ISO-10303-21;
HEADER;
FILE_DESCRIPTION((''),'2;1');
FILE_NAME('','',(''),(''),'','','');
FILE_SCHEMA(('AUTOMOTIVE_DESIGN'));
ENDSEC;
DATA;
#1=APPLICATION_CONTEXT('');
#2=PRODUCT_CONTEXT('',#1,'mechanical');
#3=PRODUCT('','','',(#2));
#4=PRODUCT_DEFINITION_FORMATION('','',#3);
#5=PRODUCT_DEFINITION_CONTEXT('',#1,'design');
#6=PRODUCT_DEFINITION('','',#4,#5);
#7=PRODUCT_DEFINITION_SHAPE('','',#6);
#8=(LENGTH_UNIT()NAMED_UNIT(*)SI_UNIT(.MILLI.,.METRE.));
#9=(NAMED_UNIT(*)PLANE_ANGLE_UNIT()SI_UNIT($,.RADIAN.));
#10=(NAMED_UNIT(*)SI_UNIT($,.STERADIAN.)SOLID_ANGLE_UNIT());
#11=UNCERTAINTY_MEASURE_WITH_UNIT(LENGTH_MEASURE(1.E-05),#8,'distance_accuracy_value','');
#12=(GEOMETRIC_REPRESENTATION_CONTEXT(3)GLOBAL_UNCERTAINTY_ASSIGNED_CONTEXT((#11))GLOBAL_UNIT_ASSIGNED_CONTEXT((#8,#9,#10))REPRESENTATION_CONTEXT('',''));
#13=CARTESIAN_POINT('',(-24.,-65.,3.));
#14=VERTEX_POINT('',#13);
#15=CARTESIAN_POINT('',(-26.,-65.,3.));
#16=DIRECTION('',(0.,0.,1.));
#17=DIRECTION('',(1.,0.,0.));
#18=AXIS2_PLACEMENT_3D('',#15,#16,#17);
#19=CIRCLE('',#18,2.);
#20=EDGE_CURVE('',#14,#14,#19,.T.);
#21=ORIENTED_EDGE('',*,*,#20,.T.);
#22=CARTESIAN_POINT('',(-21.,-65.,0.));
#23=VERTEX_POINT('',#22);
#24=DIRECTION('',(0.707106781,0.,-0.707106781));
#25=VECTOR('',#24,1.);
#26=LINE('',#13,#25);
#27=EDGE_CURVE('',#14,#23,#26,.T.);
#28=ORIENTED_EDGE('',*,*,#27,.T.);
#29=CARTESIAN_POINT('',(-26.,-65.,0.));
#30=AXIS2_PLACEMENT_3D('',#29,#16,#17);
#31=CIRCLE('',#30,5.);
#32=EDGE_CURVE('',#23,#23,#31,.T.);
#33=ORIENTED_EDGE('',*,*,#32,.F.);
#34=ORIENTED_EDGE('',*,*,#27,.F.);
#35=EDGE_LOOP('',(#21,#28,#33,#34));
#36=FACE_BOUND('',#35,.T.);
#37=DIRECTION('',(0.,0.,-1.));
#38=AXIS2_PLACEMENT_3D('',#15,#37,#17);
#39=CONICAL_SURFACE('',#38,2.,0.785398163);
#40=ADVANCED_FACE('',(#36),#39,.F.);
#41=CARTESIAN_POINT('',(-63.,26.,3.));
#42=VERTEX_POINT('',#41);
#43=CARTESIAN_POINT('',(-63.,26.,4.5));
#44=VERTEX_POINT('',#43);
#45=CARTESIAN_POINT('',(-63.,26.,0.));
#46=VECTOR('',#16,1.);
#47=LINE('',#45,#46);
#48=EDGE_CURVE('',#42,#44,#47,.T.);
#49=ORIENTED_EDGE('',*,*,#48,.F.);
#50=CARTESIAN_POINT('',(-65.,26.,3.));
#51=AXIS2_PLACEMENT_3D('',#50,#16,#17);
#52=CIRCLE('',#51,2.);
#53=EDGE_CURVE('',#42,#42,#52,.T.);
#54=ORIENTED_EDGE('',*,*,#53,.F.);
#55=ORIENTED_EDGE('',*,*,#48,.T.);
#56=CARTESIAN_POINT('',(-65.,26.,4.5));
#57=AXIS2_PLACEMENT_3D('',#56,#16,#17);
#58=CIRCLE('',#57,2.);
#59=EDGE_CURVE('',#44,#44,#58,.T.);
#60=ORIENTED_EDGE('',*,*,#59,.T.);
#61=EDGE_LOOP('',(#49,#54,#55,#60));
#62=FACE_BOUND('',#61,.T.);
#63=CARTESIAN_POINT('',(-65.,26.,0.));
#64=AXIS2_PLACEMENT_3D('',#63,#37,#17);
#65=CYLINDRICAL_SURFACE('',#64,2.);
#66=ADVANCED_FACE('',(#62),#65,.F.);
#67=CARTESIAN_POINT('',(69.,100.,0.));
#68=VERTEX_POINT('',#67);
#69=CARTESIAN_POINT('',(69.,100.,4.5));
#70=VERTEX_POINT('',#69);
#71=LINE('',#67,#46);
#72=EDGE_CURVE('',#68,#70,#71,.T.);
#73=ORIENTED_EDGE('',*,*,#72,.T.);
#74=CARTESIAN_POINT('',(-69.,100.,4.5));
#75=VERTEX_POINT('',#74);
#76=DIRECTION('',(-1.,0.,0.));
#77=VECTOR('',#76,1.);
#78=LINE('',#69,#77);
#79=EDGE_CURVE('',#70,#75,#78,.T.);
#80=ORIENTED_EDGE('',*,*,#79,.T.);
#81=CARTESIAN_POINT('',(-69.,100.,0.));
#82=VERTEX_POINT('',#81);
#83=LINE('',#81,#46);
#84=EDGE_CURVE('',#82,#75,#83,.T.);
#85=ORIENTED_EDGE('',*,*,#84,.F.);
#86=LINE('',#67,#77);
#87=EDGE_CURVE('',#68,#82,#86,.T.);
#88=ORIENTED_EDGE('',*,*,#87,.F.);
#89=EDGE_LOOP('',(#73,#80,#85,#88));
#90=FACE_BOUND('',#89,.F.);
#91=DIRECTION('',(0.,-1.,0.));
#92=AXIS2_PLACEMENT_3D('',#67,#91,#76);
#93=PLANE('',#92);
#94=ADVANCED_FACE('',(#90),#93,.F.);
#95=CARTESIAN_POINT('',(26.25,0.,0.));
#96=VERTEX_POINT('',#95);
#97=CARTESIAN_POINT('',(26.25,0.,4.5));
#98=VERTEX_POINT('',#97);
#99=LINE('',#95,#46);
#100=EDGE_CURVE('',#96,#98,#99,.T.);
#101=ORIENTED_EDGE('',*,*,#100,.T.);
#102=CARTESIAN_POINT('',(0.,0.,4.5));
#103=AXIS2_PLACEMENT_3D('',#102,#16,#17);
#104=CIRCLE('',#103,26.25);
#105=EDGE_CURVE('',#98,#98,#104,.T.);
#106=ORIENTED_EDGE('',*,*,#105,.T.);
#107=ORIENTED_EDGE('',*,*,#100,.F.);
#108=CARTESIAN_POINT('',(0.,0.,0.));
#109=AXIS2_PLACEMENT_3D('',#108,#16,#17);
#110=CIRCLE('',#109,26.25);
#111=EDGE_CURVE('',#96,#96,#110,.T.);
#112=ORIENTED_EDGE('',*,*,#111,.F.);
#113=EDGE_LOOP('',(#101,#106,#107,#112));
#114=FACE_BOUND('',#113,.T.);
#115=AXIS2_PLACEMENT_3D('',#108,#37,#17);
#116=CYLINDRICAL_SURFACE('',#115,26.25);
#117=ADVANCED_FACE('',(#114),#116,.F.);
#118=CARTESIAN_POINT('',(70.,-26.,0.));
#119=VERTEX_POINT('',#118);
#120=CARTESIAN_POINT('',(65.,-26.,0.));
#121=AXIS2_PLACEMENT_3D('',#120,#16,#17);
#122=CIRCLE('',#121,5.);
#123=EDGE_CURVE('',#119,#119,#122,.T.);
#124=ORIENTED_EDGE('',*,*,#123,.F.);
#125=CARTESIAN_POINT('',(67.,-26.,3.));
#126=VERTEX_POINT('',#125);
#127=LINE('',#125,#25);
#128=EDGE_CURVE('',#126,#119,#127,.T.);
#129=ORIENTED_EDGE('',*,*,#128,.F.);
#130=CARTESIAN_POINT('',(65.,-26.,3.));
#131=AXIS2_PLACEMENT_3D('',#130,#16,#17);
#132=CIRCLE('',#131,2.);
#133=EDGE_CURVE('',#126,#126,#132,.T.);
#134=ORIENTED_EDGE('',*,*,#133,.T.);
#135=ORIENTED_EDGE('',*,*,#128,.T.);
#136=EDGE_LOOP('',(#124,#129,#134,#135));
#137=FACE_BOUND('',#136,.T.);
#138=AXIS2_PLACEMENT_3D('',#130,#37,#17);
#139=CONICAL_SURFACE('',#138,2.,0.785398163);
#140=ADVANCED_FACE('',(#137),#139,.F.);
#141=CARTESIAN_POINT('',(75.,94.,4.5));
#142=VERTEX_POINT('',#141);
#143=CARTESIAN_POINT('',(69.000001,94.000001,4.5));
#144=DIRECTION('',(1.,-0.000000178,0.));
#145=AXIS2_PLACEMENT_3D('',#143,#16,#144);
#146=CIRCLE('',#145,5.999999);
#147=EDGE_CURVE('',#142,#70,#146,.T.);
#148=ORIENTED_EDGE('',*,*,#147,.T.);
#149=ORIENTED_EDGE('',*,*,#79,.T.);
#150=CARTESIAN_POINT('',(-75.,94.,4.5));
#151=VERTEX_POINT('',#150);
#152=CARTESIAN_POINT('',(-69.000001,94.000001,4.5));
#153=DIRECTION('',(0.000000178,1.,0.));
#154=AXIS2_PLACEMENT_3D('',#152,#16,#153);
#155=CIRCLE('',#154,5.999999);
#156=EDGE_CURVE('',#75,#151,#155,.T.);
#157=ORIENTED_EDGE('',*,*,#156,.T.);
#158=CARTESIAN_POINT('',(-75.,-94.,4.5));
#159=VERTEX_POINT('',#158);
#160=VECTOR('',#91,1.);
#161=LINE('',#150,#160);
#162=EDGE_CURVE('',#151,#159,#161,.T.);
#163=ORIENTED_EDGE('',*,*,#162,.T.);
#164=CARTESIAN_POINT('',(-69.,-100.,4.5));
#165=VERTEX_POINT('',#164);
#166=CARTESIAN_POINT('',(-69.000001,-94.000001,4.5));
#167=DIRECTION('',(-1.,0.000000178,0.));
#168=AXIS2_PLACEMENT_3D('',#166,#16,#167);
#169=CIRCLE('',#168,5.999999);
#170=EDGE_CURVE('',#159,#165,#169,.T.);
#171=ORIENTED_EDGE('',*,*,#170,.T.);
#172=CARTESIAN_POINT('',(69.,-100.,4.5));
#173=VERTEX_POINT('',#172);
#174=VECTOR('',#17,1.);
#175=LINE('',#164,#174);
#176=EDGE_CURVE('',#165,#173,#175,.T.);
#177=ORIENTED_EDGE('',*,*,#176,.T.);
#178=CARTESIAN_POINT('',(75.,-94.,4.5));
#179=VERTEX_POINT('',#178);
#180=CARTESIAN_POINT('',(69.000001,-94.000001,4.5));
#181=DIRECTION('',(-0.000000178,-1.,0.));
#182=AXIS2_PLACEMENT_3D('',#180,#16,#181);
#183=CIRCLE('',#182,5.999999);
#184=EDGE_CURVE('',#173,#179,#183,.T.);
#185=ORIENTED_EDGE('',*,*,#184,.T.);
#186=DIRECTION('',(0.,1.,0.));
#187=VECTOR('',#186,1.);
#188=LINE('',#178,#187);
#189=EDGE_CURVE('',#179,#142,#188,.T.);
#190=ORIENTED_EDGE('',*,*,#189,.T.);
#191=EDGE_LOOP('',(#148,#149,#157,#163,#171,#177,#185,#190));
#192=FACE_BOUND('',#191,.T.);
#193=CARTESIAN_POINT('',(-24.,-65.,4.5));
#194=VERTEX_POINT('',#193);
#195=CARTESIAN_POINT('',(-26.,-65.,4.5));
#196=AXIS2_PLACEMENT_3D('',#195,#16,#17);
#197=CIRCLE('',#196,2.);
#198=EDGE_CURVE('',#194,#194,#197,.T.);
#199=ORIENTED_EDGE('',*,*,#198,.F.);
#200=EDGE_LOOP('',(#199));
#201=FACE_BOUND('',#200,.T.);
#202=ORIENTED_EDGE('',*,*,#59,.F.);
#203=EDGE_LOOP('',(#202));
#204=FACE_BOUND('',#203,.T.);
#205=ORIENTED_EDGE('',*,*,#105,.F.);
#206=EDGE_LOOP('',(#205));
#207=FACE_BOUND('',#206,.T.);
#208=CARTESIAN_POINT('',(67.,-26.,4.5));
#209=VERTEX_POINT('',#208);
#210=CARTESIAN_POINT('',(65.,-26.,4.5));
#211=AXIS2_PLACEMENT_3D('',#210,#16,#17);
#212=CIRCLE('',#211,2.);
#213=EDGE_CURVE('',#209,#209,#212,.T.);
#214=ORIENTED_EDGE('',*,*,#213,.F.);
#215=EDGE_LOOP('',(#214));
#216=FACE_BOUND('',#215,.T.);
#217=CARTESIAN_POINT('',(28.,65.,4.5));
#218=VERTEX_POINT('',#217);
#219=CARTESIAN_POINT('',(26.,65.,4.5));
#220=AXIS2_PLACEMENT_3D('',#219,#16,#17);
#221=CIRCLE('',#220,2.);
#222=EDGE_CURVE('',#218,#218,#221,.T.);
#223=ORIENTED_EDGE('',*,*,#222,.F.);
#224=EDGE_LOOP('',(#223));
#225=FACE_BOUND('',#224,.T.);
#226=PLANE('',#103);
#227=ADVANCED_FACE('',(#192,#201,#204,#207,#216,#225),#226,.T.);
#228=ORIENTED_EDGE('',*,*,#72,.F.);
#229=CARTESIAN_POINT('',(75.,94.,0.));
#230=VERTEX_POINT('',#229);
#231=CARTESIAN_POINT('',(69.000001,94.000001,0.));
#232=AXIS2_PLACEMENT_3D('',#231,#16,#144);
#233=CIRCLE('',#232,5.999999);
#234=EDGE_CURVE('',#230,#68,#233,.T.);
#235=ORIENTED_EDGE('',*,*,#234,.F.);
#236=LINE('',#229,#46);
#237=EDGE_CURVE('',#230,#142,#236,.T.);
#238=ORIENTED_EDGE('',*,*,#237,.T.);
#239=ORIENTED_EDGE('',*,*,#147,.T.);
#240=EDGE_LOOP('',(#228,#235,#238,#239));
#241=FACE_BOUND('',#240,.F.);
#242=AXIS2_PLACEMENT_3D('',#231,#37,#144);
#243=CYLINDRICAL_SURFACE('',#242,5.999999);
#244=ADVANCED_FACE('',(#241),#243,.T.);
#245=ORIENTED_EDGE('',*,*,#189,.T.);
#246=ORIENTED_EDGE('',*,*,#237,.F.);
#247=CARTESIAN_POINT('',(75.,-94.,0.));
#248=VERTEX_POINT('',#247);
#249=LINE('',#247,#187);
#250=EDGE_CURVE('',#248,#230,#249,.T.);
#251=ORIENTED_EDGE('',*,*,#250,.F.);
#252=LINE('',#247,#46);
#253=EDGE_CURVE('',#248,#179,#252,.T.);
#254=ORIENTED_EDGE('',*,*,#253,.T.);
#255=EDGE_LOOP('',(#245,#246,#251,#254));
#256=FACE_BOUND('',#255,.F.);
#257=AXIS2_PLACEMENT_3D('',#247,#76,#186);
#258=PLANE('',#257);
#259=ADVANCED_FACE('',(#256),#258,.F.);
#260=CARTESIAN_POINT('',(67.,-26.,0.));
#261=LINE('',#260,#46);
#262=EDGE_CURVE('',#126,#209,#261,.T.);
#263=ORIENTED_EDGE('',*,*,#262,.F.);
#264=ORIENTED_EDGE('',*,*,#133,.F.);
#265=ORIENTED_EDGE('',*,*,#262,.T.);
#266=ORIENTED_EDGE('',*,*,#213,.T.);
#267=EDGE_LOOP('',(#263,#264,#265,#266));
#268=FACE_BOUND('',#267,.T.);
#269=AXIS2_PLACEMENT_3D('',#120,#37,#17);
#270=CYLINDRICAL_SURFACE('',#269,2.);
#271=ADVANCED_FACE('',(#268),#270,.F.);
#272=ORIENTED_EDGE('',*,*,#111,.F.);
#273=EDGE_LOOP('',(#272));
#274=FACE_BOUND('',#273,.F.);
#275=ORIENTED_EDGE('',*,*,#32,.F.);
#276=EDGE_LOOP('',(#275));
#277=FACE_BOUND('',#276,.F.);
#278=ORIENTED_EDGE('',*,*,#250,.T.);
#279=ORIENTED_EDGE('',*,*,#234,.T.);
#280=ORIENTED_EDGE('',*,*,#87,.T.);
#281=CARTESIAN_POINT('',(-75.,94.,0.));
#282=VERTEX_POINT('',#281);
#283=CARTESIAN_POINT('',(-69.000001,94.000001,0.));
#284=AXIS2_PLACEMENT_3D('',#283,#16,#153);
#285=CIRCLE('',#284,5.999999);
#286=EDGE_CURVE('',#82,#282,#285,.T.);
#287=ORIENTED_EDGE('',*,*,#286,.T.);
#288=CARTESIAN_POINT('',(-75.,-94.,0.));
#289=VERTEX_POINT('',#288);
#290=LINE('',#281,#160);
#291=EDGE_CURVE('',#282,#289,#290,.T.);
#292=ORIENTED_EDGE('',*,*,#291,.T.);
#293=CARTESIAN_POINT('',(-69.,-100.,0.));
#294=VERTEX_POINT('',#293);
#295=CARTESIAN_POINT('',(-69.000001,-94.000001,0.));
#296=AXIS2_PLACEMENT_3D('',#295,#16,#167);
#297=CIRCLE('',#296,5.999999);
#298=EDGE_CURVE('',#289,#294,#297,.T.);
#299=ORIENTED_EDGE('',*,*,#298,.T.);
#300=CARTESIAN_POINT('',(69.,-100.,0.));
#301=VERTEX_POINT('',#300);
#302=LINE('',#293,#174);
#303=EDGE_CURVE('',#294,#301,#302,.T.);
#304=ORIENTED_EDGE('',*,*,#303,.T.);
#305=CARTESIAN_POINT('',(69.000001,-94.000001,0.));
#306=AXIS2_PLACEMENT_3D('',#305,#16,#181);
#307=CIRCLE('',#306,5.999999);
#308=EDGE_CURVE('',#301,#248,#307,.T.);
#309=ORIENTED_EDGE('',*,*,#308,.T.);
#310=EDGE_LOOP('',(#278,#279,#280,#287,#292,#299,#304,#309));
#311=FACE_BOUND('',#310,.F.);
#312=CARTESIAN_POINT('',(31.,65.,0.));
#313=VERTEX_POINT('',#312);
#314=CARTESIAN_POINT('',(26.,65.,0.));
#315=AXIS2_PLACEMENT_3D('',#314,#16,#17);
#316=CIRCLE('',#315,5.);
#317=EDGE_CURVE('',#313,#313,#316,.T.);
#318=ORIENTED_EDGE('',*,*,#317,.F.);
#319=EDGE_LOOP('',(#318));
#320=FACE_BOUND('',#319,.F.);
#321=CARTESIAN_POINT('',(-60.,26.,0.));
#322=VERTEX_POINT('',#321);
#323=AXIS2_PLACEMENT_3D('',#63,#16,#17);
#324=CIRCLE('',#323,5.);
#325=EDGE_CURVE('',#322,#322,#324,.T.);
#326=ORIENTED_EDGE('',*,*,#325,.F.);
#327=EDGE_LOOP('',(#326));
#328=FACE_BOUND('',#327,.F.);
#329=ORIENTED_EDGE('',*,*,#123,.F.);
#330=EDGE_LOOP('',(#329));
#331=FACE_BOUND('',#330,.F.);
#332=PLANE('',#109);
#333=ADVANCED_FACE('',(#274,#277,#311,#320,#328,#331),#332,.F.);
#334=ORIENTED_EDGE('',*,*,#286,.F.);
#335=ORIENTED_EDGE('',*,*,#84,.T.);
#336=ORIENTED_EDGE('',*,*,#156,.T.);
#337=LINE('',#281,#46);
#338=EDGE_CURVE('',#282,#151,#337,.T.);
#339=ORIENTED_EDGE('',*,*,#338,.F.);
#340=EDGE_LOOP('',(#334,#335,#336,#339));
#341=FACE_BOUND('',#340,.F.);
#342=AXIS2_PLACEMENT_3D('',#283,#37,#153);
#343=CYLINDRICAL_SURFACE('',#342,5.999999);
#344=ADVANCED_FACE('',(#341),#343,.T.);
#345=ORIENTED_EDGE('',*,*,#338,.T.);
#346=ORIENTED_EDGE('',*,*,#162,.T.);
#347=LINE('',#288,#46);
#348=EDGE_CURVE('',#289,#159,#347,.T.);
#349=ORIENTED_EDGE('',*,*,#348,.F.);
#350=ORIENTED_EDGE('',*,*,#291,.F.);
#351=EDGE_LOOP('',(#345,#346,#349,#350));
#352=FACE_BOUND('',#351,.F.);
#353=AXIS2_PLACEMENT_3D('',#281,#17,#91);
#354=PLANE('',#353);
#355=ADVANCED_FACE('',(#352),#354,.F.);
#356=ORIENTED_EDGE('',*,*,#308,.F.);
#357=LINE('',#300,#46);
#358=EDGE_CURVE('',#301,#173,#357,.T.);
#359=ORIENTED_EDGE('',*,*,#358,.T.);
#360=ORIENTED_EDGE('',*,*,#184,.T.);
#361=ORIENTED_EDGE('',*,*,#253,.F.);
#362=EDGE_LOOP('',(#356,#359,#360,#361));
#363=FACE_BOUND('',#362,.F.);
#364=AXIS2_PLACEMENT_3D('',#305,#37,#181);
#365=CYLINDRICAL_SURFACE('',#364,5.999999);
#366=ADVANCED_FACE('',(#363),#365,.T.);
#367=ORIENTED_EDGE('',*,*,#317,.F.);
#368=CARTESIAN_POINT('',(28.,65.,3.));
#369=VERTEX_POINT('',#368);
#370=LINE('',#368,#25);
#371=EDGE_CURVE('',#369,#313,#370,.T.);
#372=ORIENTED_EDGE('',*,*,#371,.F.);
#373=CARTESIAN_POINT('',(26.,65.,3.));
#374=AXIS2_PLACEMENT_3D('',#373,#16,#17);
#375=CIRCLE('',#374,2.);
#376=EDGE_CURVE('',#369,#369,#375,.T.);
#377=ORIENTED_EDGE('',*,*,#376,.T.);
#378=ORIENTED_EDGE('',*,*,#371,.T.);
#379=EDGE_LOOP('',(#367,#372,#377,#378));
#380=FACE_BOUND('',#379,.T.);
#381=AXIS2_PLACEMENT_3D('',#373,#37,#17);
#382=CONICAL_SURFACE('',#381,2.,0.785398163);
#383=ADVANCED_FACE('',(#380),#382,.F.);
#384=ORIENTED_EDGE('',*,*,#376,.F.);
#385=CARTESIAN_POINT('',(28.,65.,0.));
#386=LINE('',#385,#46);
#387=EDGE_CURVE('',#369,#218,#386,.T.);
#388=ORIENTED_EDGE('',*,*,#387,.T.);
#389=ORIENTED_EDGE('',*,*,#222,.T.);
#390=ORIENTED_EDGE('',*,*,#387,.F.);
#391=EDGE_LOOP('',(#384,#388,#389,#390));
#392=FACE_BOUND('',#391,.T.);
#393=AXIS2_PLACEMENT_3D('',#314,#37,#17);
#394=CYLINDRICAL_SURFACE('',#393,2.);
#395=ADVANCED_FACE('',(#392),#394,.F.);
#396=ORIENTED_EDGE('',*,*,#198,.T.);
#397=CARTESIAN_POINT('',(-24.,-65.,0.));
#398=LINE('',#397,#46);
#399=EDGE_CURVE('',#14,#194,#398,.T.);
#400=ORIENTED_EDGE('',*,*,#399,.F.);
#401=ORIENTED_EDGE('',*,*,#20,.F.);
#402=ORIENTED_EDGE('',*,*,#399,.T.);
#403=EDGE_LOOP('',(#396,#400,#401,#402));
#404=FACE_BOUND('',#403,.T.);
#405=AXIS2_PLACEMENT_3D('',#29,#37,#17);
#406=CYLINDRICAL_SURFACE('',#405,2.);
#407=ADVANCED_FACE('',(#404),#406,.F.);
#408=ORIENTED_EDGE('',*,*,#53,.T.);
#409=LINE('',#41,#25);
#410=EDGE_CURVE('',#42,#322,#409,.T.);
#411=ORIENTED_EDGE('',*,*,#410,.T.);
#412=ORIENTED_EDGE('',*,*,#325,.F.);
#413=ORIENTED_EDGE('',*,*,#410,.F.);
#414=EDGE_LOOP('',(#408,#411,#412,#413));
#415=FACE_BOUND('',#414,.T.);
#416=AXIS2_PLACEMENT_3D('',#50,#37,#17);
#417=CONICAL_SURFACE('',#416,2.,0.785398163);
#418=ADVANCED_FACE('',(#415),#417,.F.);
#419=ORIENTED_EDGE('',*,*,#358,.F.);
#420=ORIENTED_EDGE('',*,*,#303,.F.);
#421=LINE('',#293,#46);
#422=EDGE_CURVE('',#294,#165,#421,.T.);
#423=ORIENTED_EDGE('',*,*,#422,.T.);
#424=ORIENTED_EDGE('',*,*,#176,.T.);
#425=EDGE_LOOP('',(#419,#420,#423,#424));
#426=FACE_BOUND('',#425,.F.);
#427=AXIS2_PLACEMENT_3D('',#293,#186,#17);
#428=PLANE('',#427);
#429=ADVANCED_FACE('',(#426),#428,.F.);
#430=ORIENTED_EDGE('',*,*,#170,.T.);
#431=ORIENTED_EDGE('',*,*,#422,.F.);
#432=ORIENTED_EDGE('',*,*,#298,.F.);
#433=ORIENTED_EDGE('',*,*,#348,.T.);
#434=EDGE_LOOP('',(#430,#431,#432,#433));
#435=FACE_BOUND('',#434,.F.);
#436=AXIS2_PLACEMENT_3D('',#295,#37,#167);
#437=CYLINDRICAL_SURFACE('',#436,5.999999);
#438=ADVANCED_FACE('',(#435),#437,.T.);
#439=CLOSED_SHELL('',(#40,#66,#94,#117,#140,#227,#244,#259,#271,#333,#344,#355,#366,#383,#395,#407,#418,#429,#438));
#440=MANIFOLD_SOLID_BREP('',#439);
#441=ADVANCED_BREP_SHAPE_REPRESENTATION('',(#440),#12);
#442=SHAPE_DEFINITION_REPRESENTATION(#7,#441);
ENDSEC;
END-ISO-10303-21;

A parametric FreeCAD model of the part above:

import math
import FreeCAD as App
import Part
import Sketcher

V = App.Vector
Q = App.Units.Quantity


def edges_at(feature, points):
    """Names of the edges that pass closest to the given points."""
    edges = feature.Shape.Edges
    near = lambda p: min(range(len(edges)), key=lambda i: edges[i].distToShape(Part.Vertex(*p))[0])
    return sorted({f"Edge{near(p) + 1}" for p in points})

doc = App.newDocument("Part")
body = doc.addObject("PartDesign::Body", "Body")

# Sketch on XY plane
sketch1 = doc.addObject("Sketcher::SketchObject", "Sketch")
body.addObject(sketch1)
sketch1.AttachmentSupport = (doc.XY_Plane, [""])
sketch1.MapMode = "FlatFace"
sketch1.addGeometry(Part.LineSegment(V(69, 100, 0), V(-69, 100, 0)), False)
sketch1.addGeometry(Part.ArcOfCircle(Part.Circle(V(-69, 94, 0), V(0, 0, 1), 6), math.radians(90), math.radians(180)), False)
sketch1.addGeometry(Part.LineSegment(V(-75, 94, 0), V(-75, -94, 0)), False)
sketch1.addGeometry(Part.ArcOfCircle(Part.Circle(V(-69, -94, 0), V(0, 0, 1), 6), math.radians(180), math.radians(270)), False)
sketch1.addGeometry(Part.LineSegment(V(-69, -100, 0), V(69, -100, 0)), False)
sketch1.addGeometry(Part.ArcOfCircle(Part.Circle(V(69, -94, 0), V(0, 0, 1), 6), math.radians(-90), math.radians(0)), False)
sketch1.addGeometry(Part.LineSegment(V(75, -94, 0), V(75, 94, 0)), False)
sketch1.addGeometry(Part.ArcOfCircle(Part.Circle(V(69, 94, 0), V(0, 0, 1), 6), math.radians(0), math.radians(90)), False)
sketch1.addGeometry(Part.Circle(V(-26, -65, 0), V(0, 0, 1), 2), False)
sketch1.addGeometry(Part.Circle(V(65, -26, 0), V(0, 0, 1), 2), False)
sketch1.addGeometry(Part.Circle(V(-65, 26, 0), V(0, 0, 1), 2), False)
sketch1.addGeometry(Part.Circle(V(0, 0, 0), V(0, 0, 1), 26.2), False)
sketch1.addGeometry(Part.Circle(V(26, 65, 0), V(0, 0, 1), 2), False)
sketch1.addConstraint(Sketcher.Constraint("Tangent", 0, 2, 1, 1))
sketch1.addConstraint(Sketcher.Constraint("Tangent", 1, 2, 2, 1))
sketch1.addConstraint(Sketcher.Constraint("Tangent", 2, 2, 3, 1))
sketch1.addConstraint(Sketcher.Constraint("Tangent", 3, 2, 4, 1))
sketch1.addConstraint(Sketcher.Constraint("Tangent", 4, 2, 5, 1))
sketch1.addConstraint(Sketcher.Constraint("Tangent", 5, 2, 6, 1))
sketch1.addConstraint(Sketcher.Constraint("Tangent", 6, 2, 7, 1))
sketch1.addConstraint(Sketcher.Constraint("Tangent", 7, 2, 0, 1))
sketch1.addConstraint(Sketcher.Constraint("Horizontal", 0))
sketch1.addConstraint(Sketcher.Constraint("Vertical", 2))
sketch1.addConstraint(Sketcher.Constraint("Horizontal", 4))
sketch1.addConstraint(Sketcher.Constraint("Vertical", 6))
sketch1.addConstraint(Sketcher.Constraint("Coincident", 11, 3, -1, 1))
sketch1.addConstraint(Sketcher.Constraint("Equal", 1, 3))
sketch1.addConstraint(Sketcher.Constraint("Equal", 3, 5))
sketch1.addConstraint(Sketcher.Constraint("Equal", 5, 7))
sketch1.addConstraint(Sketcher.Constraint("Equal", 8, 9))
sketch1.addConstraint(Sketcher.Constraint("Equal", 9, 10))
sketch1.addConstraint(Sketcher.Constraint("Equal", 10, 12))
sketch1.addConstraint(Sketcher.Constraint("Symmetric", 1, 3, 5, 3, -1, 1))
sketch1.addConstraint(Sketcher.Constraint("Symmetric", 9, 3, 10, 3, -1, 1))
sketch1.addConstraint(Sketcher.Constraint("Symmetric", 8, 3, 12, 3, -1, 1))
sketch1.addConstraint(Sketcher.Constraint("Diameter", 8, Q("4 mm")))
sketch1.addConstraint(Sketcher.Constraint("Radius", 1, Q("5.999999 mm")))
sketch1.addConstraint(Sketcher.Constraint("Diameter", 11, Q("52.5 mm")))
sketch1.addConstraint(Sketcher.Constraint("DistanceX", 0, 2, 0, 1, Q("138 mm")))
sketch1.addConstraint(Sketcher.Constraint("DistanceY", 2, 2, 2, 1, Q("188 mm")))
sketch1.addConstraint(Sketcher.Constraint("DistanceX", 8, 3, -1, 1, Q("26 mm")))
sketch1.addConstraint(Sketcher.Constraint("DistanceY", 8, 3, -1, 1, Q("65 mm")))
sketch1.addConstraint(Sketcher.Constraint("DistanceX", -1, 1, 9, 3, Q("65 mm")))
sketch1.addConstraint(Sketcher.Constraint("DistanceY", 9, 3, -1, 1, Q("26 mm")))
pad1 = doc.addObject("PartDesign::Pad", "Pad")
body.addObject(pad1)
pad1.Profile = sketch1
pad1.Length = 4.5
doc.recompute()

chamfer = doc.addObject("PartDesign::Chamfer", "Chamfer")
body.addObject(chamfer)
chamfer.Base = (pad1, edges_at(pad1, [
    (-67, 26, 0),
    (-28, -65, 0),
    (63, -26, 0),
    (24, 65, 0),
]))
chamfer.Size = 3

doc.recompute()
